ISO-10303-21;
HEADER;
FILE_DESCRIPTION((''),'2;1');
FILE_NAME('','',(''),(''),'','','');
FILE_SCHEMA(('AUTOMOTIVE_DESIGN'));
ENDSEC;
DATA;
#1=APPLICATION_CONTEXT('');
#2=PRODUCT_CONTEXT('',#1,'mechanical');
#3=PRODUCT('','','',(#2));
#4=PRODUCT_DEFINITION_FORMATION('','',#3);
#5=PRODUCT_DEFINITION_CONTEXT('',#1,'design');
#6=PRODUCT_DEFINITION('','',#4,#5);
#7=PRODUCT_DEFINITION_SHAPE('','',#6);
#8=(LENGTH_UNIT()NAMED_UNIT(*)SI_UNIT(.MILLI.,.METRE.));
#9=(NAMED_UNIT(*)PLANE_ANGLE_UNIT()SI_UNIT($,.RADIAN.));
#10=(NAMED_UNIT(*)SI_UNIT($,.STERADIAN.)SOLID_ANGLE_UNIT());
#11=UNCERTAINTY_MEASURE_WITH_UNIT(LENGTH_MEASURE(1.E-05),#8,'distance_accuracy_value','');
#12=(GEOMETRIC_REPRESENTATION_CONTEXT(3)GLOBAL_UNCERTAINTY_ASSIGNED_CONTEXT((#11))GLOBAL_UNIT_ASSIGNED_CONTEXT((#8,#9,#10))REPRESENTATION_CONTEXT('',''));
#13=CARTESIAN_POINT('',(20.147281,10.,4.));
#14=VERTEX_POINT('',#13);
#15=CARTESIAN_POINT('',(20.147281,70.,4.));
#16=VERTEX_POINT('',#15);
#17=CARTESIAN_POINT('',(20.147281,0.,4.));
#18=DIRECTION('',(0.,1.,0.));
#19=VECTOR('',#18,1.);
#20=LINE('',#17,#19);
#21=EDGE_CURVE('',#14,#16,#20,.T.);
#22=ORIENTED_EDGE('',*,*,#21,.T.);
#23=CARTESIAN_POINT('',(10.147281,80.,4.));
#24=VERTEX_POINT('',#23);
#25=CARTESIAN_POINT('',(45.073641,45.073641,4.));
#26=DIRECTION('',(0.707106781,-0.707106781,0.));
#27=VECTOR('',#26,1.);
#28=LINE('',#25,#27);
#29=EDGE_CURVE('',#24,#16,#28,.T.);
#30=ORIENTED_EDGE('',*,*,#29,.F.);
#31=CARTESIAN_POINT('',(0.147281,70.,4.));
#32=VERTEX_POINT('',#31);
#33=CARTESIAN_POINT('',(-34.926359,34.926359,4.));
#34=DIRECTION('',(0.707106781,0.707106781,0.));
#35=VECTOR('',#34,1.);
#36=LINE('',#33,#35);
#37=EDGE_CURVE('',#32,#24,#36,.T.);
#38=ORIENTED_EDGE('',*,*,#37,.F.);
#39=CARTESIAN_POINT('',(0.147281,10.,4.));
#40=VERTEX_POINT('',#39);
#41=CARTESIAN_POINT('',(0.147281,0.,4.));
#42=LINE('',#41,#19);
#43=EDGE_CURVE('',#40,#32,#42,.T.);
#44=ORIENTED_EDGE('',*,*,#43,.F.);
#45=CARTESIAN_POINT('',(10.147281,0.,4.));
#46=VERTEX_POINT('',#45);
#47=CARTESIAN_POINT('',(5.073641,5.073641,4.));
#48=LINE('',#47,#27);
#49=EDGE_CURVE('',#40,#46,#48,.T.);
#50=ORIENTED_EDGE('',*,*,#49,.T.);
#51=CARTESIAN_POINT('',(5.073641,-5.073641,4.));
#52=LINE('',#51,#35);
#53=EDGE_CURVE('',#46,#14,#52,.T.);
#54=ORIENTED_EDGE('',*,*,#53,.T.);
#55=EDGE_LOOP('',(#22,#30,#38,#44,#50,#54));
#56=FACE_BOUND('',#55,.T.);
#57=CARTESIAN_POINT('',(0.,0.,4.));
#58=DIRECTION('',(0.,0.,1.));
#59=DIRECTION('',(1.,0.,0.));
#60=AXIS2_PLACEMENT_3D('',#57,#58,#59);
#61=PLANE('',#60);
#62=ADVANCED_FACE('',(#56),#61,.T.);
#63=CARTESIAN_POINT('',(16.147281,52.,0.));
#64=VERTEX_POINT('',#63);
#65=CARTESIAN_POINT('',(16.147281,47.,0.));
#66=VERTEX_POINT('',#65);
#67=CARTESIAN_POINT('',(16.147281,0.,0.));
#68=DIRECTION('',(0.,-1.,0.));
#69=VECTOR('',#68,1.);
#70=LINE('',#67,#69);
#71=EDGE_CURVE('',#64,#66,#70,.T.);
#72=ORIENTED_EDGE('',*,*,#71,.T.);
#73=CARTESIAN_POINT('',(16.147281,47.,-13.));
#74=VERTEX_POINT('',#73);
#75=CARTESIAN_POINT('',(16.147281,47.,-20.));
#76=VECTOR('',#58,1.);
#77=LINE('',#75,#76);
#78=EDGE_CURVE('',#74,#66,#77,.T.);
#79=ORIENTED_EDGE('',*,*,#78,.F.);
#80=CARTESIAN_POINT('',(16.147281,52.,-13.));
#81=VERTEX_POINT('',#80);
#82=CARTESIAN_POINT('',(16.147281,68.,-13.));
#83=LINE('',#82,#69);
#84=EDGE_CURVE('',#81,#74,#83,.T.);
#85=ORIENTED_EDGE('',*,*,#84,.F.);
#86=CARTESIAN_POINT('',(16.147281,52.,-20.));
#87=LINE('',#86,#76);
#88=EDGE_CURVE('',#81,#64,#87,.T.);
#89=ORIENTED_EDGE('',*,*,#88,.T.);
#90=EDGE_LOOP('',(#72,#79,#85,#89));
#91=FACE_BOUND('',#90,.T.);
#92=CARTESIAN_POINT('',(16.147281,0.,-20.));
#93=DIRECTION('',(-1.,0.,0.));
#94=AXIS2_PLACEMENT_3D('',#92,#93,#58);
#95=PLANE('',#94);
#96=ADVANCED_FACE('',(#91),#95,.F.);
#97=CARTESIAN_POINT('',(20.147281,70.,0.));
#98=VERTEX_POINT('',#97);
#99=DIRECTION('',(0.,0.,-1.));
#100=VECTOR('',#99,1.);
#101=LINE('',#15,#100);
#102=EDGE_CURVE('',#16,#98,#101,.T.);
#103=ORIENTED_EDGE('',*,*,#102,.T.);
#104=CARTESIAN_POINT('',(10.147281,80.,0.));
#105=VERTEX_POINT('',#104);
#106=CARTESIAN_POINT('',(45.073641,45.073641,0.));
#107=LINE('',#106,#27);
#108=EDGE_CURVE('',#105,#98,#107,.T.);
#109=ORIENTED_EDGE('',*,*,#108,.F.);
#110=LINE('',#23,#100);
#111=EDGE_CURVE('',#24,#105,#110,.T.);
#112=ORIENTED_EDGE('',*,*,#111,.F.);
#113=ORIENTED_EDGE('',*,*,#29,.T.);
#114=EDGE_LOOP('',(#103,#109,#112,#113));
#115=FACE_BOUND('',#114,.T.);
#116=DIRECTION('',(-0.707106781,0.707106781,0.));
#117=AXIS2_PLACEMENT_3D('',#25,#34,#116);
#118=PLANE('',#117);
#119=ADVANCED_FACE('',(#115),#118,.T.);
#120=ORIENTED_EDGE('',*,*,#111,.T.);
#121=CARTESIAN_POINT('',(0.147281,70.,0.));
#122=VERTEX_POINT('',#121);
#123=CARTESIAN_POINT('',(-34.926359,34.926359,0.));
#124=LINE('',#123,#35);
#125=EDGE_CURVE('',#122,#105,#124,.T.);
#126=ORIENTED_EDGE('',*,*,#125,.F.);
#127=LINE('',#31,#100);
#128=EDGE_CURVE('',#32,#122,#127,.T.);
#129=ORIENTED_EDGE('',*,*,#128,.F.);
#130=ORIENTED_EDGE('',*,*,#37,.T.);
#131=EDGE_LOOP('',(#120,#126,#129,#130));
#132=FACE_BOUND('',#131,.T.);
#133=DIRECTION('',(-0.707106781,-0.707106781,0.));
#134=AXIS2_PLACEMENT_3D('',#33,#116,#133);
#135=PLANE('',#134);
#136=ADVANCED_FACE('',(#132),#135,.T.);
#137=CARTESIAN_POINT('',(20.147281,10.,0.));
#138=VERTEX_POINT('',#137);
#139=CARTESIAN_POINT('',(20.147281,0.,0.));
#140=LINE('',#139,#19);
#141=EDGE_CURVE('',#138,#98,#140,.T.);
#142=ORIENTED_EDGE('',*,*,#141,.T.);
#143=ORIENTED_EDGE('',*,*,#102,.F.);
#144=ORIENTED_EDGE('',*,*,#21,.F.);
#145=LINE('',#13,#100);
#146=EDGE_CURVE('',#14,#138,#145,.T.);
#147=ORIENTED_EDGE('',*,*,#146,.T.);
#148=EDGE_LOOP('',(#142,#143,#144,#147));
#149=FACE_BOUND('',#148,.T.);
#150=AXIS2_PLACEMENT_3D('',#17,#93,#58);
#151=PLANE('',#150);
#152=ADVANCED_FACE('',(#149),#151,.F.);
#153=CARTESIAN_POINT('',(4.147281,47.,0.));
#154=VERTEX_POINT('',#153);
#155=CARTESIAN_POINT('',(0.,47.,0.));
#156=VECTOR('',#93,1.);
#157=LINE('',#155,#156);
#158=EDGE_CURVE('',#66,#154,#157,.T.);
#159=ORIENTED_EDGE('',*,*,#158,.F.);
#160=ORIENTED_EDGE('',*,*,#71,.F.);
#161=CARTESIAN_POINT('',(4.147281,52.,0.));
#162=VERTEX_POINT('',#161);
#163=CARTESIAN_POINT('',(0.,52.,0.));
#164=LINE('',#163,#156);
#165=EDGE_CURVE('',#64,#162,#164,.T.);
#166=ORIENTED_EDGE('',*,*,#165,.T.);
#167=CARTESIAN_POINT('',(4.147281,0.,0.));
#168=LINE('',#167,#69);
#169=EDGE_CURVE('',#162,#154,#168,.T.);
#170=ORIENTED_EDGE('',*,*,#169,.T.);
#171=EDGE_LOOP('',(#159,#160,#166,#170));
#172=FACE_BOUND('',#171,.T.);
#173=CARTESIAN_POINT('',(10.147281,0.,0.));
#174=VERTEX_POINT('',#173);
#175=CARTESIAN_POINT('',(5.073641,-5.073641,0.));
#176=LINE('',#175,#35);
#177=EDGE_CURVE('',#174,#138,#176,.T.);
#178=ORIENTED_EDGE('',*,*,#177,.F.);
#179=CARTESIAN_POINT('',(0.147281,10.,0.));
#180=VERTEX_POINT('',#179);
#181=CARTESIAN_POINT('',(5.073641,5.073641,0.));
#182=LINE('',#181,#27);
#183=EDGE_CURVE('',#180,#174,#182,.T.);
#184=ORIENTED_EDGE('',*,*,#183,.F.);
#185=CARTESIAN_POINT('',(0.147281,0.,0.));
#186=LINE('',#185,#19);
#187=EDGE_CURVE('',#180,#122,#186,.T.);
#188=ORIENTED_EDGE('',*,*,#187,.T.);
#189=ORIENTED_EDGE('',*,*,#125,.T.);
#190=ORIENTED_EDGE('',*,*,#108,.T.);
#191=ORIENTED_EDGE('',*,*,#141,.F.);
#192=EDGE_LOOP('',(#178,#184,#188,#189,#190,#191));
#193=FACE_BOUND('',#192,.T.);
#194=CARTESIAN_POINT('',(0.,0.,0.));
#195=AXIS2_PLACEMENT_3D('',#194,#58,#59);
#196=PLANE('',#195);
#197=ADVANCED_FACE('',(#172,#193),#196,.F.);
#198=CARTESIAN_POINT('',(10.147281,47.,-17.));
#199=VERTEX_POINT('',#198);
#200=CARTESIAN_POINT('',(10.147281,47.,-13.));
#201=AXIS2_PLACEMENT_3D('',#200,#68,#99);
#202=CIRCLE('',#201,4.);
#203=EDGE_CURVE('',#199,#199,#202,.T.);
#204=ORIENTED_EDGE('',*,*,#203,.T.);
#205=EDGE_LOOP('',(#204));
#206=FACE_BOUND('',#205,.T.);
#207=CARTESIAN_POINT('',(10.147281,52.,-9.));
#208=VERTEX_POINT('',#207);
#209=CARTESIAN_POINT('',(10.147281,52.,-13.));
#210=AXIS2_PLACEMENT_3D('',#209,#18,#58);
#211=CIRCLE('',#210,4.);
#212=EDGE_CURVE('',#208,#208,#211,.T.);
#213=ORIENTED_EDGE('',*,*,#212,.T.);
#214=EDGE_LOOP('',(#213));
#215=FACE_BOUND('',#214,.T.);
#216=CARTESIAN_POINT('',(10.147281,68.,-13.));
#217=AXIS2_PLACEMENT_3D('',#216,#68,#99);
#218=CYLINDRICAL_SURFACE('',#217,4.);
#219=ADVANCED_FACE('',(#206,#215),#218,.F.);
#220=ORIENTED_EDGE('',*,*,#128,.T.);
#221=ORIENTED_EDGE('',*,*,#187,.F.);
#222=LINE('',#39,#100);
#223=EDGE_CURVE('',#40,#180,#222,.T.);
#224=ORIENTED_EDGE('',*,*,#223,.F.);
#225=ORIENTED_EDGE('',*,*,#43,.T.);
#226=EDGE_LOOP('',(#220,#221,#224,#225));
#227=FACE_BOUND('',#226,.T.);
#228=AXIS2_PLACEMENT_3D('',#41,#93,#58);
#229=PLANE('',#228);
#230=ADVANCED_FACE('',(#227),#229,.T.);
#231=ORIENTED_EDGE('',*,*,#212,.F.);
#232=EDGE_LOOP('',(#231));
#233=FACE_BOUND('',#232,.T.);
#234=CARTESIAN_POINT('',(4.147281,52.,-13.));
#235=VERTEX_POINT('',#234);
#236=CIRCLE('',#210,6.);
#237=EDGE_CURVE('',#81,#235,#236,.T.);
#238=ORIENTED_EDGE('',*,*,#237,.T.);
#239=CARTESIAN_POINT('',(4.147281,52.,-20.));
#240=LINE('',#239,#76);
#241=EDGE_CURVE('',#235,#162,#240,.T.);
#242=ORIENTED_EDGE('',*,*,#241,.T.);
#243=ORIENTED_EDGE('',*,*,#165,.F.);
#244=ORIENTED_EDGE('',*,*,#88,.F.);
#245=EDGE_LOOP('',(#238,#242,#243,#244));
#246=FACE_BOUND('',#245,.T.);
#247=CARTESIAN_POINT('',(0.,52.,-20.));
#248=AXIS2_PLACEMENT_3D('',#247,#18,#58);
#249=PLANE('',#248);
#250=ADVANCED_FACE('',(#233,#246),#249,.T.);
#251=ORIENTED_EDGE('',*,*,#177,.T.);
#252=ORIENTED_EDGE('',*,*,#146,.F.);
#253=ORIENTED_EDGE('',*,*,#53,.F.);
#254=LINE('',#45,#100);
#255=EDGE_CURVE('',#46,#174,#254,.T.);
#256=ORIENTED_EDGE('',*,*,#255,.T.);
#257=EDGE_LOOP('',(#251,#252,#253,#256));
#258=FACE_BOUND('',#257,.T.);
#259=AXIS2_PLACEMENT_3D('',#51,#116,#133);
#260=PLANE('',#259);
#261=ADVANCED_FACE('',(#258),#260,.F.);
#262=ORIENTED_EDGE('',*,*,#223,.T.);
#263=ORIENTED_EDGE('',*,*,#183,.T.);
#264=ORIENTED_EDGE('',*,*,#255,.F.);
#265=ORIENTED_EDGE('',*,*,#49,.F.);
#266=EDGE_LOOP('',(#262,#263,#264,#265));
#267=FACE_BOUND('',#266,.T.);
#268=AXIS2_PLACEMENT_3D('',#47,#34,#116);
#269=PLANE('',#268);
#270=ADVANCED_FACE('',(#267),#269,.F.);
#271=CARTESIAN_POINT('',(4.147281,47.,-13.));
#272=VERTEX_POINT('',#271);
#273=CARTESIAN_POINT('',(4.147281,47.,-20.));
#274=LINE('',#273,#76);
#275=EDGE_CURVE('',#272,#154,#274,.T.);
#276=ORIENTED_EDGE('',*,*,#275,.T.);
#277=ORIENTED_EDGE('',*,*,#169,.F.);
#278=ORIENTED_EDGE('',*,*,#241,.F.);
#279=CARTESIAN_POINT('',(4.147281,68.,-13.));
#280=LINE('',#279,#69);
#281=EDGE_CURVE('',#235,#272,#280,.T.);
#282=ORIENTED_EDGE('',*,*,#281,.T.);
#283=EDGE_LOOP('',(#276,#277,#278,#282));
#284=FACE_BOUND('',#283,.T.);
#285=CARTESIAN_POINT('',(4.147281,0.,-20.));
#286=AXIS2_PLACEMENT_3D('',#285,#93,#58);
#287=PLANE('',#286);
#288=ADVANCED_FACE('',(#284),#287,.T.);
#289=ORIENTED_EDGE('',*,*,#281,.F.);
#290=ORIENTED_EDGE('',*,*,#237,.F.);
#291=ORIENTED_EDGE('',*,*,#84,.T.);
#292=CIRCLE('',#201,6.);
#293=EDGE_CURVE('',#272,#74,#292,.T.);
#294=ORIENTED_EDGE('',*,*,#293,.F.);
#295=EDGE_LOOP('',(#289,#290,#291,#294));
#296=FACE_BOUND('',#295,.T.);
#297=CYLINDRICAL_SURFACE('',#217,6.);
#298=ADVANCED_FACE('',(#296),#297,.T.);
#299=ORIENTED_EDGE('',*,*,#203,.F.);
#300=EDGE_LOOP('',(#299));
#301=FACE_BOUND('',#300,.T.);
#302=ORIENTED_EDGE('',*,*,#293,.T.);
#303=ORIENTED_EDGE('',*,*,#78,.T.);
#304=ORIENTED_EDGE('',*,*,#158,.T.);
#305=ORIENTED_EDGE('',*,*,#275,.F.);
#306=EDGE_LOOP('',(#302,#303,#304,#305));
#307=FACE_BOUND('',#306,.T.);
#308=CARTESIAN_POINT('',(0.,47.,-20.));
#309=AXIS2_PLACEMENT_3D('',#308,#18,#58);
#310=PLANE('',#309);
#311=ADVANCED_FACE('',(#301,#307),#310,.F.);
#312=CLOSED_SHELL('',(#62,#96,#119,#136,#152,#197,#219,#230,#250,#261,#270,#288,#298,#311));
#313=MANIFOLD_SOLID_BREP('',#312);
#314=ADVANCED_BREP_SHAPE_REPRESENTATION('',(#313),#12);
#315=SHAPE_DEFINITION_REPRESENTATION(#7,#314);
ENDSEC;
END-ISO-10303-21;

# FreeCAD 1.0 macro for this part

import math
import FreeCAD as App
import Part
import Sketcher
from FreeCAD import Vector


def add_polygon(sketch, points):
    """Adds a closed chain of lines whose ends are joined by coincident constraints."""
    first, n = sketch.GeometryCount, len(points)
    for a, b in zip(points, points[1:] + points[:1]):
        sketch.addGeometry(Part.LineSegment(App.Vector(*a, 0), App.Vector(*b, 0)), False)
    for i in range(n):
        sketch.addConstraint(Sketcher.Constraint("Coincident", first + i, 2, first + (i + 1) % n, 1))

doc = App.newDocument("Part")
body = doc.addObject("PartDesign::Body", "Body")

# Sketch on XY plane
sketch1 = doc.addObject("Sketcher::SketchObject", "Sketch")
body.addObject(sketch1)
sketch1.AttachmentSupport = (doc.XY_Plane, [""])
sketch1.MapMode = "FlatFace"
add_polygon(sketch1, [(0, 70), (0, 10), (10, 0), (20, 10), (20, 70), (10, 80)])  # lines 0-5
sketch1.addConstraint(Sketcher.Constraint("Vertical", 0))
sketch1.addConstraint(Sketcher.Constraint("Vertical", 3))
sketch1.addConstraint(Sketcher.Constraint("PointOnObject", 1, 2, -1))
sketch1.addConstraint(Sketcher.Constraint("Perpendicular", 1, 2))
sketch1.addConstraint(Sketcher.Constraint("Perpendicular", 2, 4))
sketch1.addConstraint(Sketcher.Constraint("Perpendicular", 4, 5))
sketch1.addConstraint(Sketcher.Constraint("Horizontal", 0, 2, 2, 2))
sketch1.addConstraint(Sketcher.Constraint("Horizontal", 3, 2, 5, 2))
sketch1.addConstraint(Sketcher.Constraint("Vertical", 1, 2, 4, 2))
sketch1.addConstraint(Sketcher.Constraint("DistanceY", 0, 2, 0, 1, 60.0))
sketch1.addConstraint(Sketcher.Constraint("DistanceY", -1, 1, 0, 2, 10.0))
sketch1.addConstraint(Sketcher.Constraint("DistanceX", -1, 1, 0, 2, 0.147281))
pad1 = doc.addObject("PartDesign::Pad", "Pad")
body.addObject(pad1)
pad1.Profile = sketch1
pad1.Length = 4

# Sketch on XY plane
sketch2 = doc.addObject("Sketcher::SketchObject", "Sketch001")
body.addObject(sketch2)
sketch2.AttachmentSupport = (doc.XY_Plane, [""])
sketch2.MapMode = "FlatFace"
add_polygon(sketch2, [(16, 52), (16, 47), (4, 47), (4, 52)])  # lines 0-3
sketch2.addConstraint(Sketcher.Constraint("Vertical", 0))
sketch2.addConstraint(Sketcher.Constraint("Horizontal", 1))
sketch2.addConstraint(Sketcher.Constraint("Vertical", 2))
sketch2.addConstraint(Sketcher.Constraint("Horizontal", 3))
sketch2.addConstraint(Sketcher.Constraint("DistanceX", 1, 2, 1, 1, 12.0))
sketch2.addConstraint(Sketcher.Constraint("DistanceY", 0, 2, 0, 1, 5.0))
sketch2.addConstraint(Sketcher.Constraint("DistanceY", -1, 1, 0, 2, 47.0))
sketch2.addConstraint(Sketcher.Constraint("DistanceX", -1, 1, 0, 2, 16.147281))
pad2 = doc.addObject("PartDesign::Pad", "Pad001")
body.addObject(pad2)
pad2.Profile = sketch2
pad2.Length = 20
pad2.Reversed = True

# Sketch on XZ plane
sketch3 = doc.addObject("Sketcher::SketchObject", "Sketch002")
body.addObject(sketch3)
sketch3.AttachmentSupport = (doc.XZ_Plane, [""])
sketch3.MapMode = "FlatFace"
sketch3.AttachmentOffset = App.Placement(Vector(0, 0, -47), App.Rotation())
sketch3.addGeometry(Part.Circle(Vector(10.1, -13, 0), Vector(0, 0, 1), 4), False)
sketch3.addGeometry(Part.LineSegment(Vector(16.1, -20, 0), Vector(16.1, -13, 0)), False)
sketch3.addGeometry(Part.ArcOfCircle(Part.Circle(Vector(10.1, -13, 0), Vector(0, 0, 1), 6), math.radians(180), math.radians(360)), False)
sketch3.addGeometry(Part.LineSegment(Vector(4.1, -13, 0), Vector(4.1, -20, 0)), False)
sketch3.addGeometry(Part.LineSegment(Vector(4.1, -20, 0), Vector(16.1, -20, 0)), False)
sketch3.addConstraint(Sketcher.Constraint("Tangent", 1, 2, 2, 2))
sketch3.addConstraint(Sketcher.Constraint("Tangent", 2, 1, 3, 1))
sketch3.addConstraint(Sketcher.Constraint("Coincident", 3, 2, 4, 1))
sketch3.addConstraint(Sketcher.Constraint("Coincident", 4, 2, 1, 1))
sketch3.addConstraint(Sketcher.Constraint("Vertical", 1))
sketch3.addConstraint(Sketcher.Constraint("Vertical", 3))
sketch3.addConstraint(Sketcher.Constraint("Horizontal", 4))
sketch3.addConstraint(Sketcher.Constraint("Coincident", 2, 3, 0, 3))
sketch3.addConstraint(Sketcher.Constraint("Diameter", 0, 8.0))
sketch3.addConstraint(Sketcher.Constraint("Radius", 2, 6.0))
sketch3.addConstraint(Sketcher.Constraint("DistanceY", 1, 1, 1, 2, 7.0))
sketch3.addConstraint(Sketcher.Constraint("DistanceY", 0, 3, -1, 1, 13.0))
sketch3.addConstraint(Sketcher.Constraint("DistanceX", -1, 1, 0, 3, 10.147281))
pocket1 = doc.addObject("PartDesign::Pocket", "Pocket")
body.addObject(pocket1)
pocket1.Profile = sketch3
pocket1.Length = 21

doc.recompute()
